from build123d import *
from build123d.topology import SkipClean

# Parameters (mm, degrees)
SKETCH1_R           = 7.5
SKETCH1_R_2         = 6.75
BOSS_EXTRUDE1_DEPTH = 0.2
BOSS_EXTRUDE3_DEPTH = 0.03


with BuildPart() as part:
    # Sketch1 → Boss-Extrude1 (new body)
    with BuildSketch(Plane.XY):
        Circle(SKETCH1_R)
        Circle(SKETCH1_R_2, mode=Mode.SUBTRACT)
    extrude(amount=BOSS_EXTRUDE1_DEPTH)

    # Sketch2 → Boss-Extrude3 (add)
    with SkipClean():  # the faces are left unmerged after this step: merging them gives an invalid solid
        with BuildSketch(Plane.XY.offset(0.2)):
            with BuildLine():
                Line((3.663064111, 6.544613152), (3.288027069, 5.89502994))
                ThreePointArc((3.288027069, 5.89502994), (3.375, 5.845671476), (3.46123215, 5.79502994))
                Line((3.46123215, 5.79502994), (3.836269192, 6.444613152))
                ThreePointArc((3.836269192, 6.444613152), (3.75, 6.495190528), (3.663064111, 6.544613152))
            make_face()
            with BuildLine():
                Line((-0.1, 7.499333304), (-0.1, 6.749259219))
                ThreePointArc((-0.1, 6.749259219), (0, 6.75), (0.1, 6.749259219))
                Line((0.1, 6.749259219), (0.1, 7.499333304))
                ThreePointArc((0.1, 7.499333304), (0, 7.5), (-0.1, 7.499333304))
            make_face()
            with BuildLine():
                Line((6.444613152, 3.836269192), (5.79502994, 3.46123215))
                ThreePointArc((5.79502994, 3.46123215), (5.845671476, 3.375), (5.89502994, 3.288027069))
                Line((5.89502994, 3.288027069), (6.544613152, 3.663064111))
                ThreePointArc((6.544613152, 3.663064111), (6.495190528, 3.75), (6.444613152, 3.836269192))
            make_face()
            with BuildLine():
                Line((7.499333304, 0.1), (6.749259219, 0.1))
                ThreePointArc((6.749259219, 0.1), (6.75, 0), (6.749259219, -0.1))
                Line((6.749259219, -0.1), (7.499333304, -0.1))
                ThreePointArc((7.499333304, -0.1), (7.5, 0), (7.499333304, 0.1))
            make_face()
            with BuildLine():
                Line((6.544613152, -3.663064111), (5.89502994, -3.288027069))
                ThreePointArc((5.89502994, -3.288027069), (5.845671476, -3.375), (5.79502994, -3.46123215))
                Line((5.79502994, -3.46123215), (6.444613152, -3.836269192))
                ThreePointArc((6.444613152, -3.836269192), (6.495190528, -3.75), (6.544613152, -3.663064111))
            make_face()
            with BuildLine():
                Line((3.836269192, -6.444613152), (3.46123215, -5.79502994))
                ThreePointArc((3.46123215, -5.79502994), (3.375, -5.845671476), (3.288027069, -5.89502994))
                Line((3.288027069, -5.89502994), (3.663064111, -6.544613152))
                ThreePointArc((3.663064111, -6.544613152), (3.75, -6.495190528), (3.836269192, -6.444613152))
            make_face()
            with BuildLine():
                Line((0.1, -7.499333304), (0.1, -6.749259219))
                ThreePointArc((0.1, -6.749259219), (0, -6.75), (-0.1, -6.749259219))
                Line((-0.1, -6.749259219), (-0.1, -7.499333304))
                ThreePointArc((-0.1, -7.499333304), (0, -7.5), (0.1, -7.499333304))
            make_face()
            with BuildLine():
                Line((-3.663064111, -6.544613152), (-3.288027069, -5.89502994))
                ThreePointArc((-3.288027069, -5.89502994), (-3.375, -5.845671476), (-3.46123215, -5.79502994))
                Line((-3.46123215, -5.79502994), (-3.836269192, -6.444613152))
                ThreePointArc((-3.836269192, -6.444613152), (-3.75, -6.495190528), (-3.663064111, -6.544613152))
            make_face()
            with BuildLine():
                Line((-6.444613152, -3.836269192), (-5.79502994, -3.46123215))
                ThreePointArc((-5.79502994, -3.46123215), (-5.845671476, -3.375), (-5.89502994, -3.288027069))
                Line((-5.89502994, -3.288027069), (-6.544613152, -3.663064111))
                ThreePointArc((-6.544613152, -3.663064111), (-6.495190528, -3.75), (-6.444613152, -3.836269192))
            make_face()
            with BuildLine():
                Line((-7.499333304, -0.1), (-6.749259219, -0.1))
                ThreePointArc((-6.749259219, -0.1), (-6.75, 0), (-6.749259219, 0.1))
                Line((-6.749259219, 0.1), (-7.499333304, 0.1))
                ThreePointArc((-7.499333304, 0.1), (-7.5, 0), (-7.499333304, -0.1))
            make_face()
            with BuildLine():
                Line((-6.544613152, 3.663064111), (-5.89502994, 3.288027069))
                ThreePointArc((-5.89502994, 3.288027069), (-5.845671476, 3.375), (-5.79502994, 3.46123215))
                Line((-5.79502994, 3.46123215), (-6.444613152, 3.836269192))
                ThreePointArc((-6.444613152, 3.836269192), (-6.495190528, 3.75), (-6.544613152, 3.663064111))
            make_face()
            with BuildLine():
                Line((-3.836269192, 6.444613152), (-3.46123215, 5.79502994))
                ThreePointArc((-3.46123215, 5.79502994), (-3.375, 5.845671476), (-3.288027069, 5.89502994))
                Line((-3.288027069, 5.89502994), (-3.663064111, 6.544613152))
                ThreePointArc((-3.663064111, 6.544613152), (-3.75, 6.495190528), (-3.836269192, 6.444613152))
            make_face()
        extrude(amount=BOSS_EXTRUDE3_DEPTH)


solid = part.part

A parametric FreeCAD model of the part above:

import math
import FreeCAD as App
import Part
import Sketcher
Q = App.Units.Quantity

doc = App.newDocument("Part")
body = doc.addObject("PartDesign::Body", "Body")

# Sketch on XY plane
sketch1 = body.newObject("Sketcher::SketchObject", "Sketch")
sketch1.AttachmentSupport = (doc.getObject("XY_Plane"), [""])
sketch1.MapMode = "FlatFace"
sketch1.addGeometry(Part.Circle(App.Vector(0, 0, 0), App.Vector(0, 0, 1), 8), False)
sketch1.addGeometry(Part.Circle(App.Vector(0, 0, 0), App.Vector(0, 0, 1), 7), False)
sketch1.addConstraint(Sketcher.Constraint("Coincident", 0, 3, -1, 1))
sketch1.addConstraint(Sketcher.Constraint("Coincident", 1, 3, -1, 1))
sketch1.addConstraint(Sketcher.Constraint("Diameter", 0, Q("15 mm")))
sketch1.addConstraint(Sketcher.Constraint("Diameter", 1, Q("13.5 mm")))
pad1 = body.newObject("PartDesign::Pad", "Pad")
pad1.Profile = sketch1
pad1.Length = 0.2

# Sketch on XY plane
sketch2 = body.newObject("Sketcher::SketchObject", "Sketch001")
sketch2.AttachmentSupport = (doc.getObject("XY_Plane"), [""])
sketch2.MapMode = "FlatFace"
sketch2.AttachmentOffset = App.Placement(App.Vector(0, 0, 0.2), App.Rotation())
sketch2.addGeometry(Part.LineSegment(App.Vector(3.66, 6.54, 0), App.Vector(3.29, 5.9, 0)), False)
sketch2.addGeometry(Part.ArcOfCircle(Part.Circle(App.Vector(0, 0, 0), App.Vector(0, 0, 1), 6.75), math.radians(59.15), math.radians(60.85)), False)
sketch2.addGeometry(Part.LineSegment(App.Vector(3.46, 5.8, 0), App.Vector(3.84, 6.44, 0)), False)
sketch2.addGeometry(Part.ArcOfCircle(Part.Circle(App.Vector(0, 0, 0), App.Vector(0, 0, 1), 7.5), math.radians(59.24), math.radians(60.76)), False)
sketch2.addGeometry(Part.LineSegment(App.Vector(-0.1, 7.5, 0), App.Vector(-0.1, 6.75, 0)), False)
sketch2.addGeometry(Part.ArcOfCircle(Part.Circle(App.Vector(0, 0, 0), App.Vector(0, 0, 1), 6.75), math.radians(89.15), math.radians(90.85)), False)
sketch2.addGeometry(Part.LineSegment(App.Vector(0.1, 6.75, 0), App.Vector(0.1, 7.5, 0)), False)
sketch2.addGeometry(Part.ArcOfCircle(Part.Circle(App.Vector(0, 0, 0), App.Vector(0, 0, 1), 7.5), math.radians(89.24), math.radians(90.76)), False)
sketch2.addGeometry(Part.LineSegment(App.Vector(6.44, 3.84, 0), App.Vector(5.8, 3.46, 0)), False)
sketch2.addGeometry(Part.ArcOfCircle(Part.Circle(App.Vector(0, 0, 0), App.Vector(0, 0, 1), 6.75), math.radians(29.15), math.radians(30.85)), False)
sketch2.addGeometry(Part.LineSegment(App.Vector(5.9, 3.29, 0), App.Vector(6.54, 3.66, 0)), False)
sketch2.addGeometry(Part.ArcOfCircle(Part.Circle(App.Vector(0, 0, 0), App.Vector(0, 0, 1), 7.5), math.radians(29.24), math.radians(30.76)), False)
sketch2.addGeometry(Part.LineSegment(App.Vector(7.5, 0.1, 0), App.Vector(6.75, 0.1, 0)), False)
sketch2.addGeometry(Part.ArcOfCircle(Part.Circle(App.Vector(0, 0, 0), App.Vector(0, 0, 1), 6.75), math.radians(-0.85), math.radians(0.85)), False)
sketch2.addGeometry(Part.LineSegment(App.Vector(6.75, -0.1, 0), App.Vector(7.5, -0.1, 0)), False)
sketch2.addGeometry(Part.ArcOfCircle(Part.Circle(App.Vector(0, 0, 0), App.Vector(0, 0, 1), 7.5), math.radians(-0.76), math.radians(0.76)), False)
sketch2.addGeometry(Part.LineSegment(App.Vector(6.54, -3.66, 0), App.Vector(5.9, -3.29, 0)), False)
sketch2.addGeometry(Part.ArcOfCircle(Part.Circle(App.Vector(0, 0, 0), App.Vector(0, 0, 1), 6.75), math.radians(-30.85), math.radians(-29.15)), False)
sketch2.addGeometry(Part.LineSegment(App.Vector(5.8, -3.46, 0), App.Vector(6.44, -3.84, 0)), False)
sketch2.addGeometry(Part.ArcOfCircle(Part.Circle(App.Vector(0, 0, 0), App.Vector(0, 0, 1), 7.5), math.radians(-30.76), math.radians(-29.24)), False)
sketch2.addGeometry(Part.LineSegment(App.Vector(3.84, -6.44, 0), App.Vector(3.46, -5.8, 0)), False)
sketch2.addGeometry(Part.ArcOfCircle(Part.Circle(App.Vector(0, 0, 0), App.Vector(0, 0, 1), 6.75), math.radians(-60.85), math.radians(-59.15)), False)
sketch2.addGeometry(Part.LineSegment(App.Vector(3.29, -5.9, 0), App.Vector(3.66, -6.54, 0)), False)
sketch2.addGeometry(Part.ArcOfCircle(Part.Circle(App.Vector(0, 0, 0), App.Vector(0, 0, 1), 7.5), math.radians(-60.76), math.radians(-59.24)), False)
sketch2.addGeometry(Part.LineSegment(App.Vector(0.1, -7.5, 0), App.Vector(0.1, -6.75, 0)), False)
sketch2.addGeometry(Part.ArcOfCircle(Part.Circle(App.Vector(0, 0, 0), App.Vector(0, 0, 1), 6.75), math.radians(-90.85), math.radians(-89.15)), False)
sketch2.addGeometry(Part.LineSegment(App.Vector(-0.1, -6.75, 0), App.Vector(-0.1, -7.5, 0)), False)
sketch2.addGeometry(Part.ArcOfCircle(Part.Circle(App.Vector(0, 0, 0), App.Vector(0, 0, 1), 7.5), math.radians(-90.76), math.radians(-89.24)), False)
sketch2.addGeometry(Part.LineSegment(App.Vector(-3.66, -6.54, 0), App.Vector(-3.29, -5.9, 0)), False)
sketch2.addGeometry(Part.ArcOfCircle(Part.Circle(App.Vector(0, 0, 0), App.Vector(0, 0, 1), 6.75), math.radians(-120.85), math.radians(-119.15)), False)
sketch2.addGeometry(Part.LineSegment(App.Vector(-3.46, -5.8, 0), App.Vector(-3.84, -6.44, 0)), False)
sketch2.addGeometry(Part.ArcOfCircle(Part.Circle(App.Vector(0, 0, 0), App.Vector(0, 0, 1), 7.5), math.radians(-120.76), math.radians(-119.24)), False)
sketch2.addGeometry(Part.LineSegment(App.Vector(-6.44, -3.84, 0), App.Vector(-5.8, -3.46, 0)), False)
sketch2.addGeometry(Part.ArcOfCircle(Part.Circle(App.Vector(0, 0, 0), App.Vector(0, 0, 1), 6.75), math.radians(-150.85), math.radians(-149.15)), False)
sketch2.addGeometry(Part.LineSegment(App.Vector(-5.9, -3.29, 0), App.Vector(-6.54, -3.66, 0)), False)
sketch2.addGeometry(Part.ArcOfCircle(Part.Circle(App.Vector(0, 0, 0), App.Vector(0, 0, 1), 7.5), math.radians(-150.76), math.radians(-149.24)), False)
sketch2.addGeometry(Part.LineSegment(App.Vector(-7.5, -0.1, 0), App.Vector(-6.75, -0.1, 0)), False)
sketch2.addGeometry(Part.ArcOfCircle(Part.Circle(App.Vector(0, 0, 0), App.Vector(0, 0, 1), 6.75), math.radians(179.15), math.radians(180.85)), False)
sketch2.addGeometry(Part.LineSegment(App.Vector(-6.75, 0.1, 0), App.Vector(-7.5, 0.1, 0)), False)
sketch2.addGeometry(Part.ArcOfCircle(Part.Circle(App.Vector(0, 0, 0), App.Vector(0, 0, 1), 7.5), math.radians(179.24), math.radians(180.76)), False)
sketch2.addGeometry(Part.LineSegment(App.Vector(-6.54, 3.66, 0), App.Vector(-5.9, 3.29, 0)), False)
sketch2.addGeometry(Part.ArcOfCircle(Part.Circle(App.Vector(0, 0, 0), App.Vector(0, 0, 1), 6.75), math.radians(149.15), math.radians(150.85)), False)
sketch2.addGeometry(Part.LineSegment(App.Vector(-5.8, 3.46, 0), App.Vector(-6.44, 3.84, 0)), False)
sketch2.addGeometry(Part.ArcOfCircle(Part.Circle(App.Vector(0, 0, 0), App.Vector(0, 0, 1), 7.5), math.radians(149.24), math.radians(150.76)), False)
sketch2.addGeometry(Part.LineSegment(App.Vector(-3.84, 6.44, 0), App.Vector(-3.46, 5.8, 0)), False)
sketch2.addGeometry(Part.ArcOfCircle(Part.Circle(App.Vector(0, 0, 0), App.Vector(0, 0, 1), 6.75), math.radians(119.15), math.radians(120.85)), False)
sketch2.addGeometry(Part.LineSegment(App.Vector(-3.29, 5.9, 0), App.Vector(-3.66, 6.54, 0)), False)
sketch2.addGeometry(Part.ArcOfCircle(Part.Circle(App.Vector(0, 0, 0), App.Vector(0, 0, 1), 7.5), math.radians(119.24), math.radians(120.76)), False)
sketch2.addConstraint(Sketcher.Constraint("Coincident", 0, 2, 1, 2))
sketch2.addConstraint(Sketcher.Constraint("Coincident", 1, 1, 2, 1))
sketch2.addConstraint(Sketcher.Constraint("Coincident", 2, 2, 3, 1))
sketch2.addConstraint(Sketcher.Constraint("Coincident", 3, 2, 0, 1))
sketch2.addConstraint(Sketcher.Constraint("Coincident", 4, 2, 5, 2))
sketch2.addConstraint(Sketcher.Constraint("Coincident", 5, 1, 6, 1))
sketch2.addConstraint(Sketcher.Constraint("Coincident", 6, 2, 7, 1))
sketch2.addConstraint(Sketcher.Constraint("Coincident", 7, 2, 4, 1))
sketch2.addConstraint(Sketcher.Constraint("Coincident", 8, 2, 9, 2))
sketch2.addConstraint(Sketcher.Constraint("Coincident", 9, 1, 10, 1))
sketch2.addConstraint(Sketcher.Constraint("Coincident", 10, 2, 11, 1))
sketch2.addConstraint(Sketcher.Constraint("Coincident", 11, 2, 8, 1))
sketch2.addConstraint(Sketcher.Constraint("Coincident", 12, 2, 13, 2))
sketch2.addConstraint(Sketcher.Constraint("Coincident", 13, 1, 14, 1))
sketch2.addConstraint(Sketcher.Constraint("Coincident", 14, 2, 15, 1))
sketch2.addConstraint(Sketcher.Constraint("Coincident", 15, 2, 12, 1))
sketch2.addConstraint(Sketcher.Constraint("Coincident", 16, 2, 17, 2))
sketch2.addConstraint(Sketcher.Constraint("Coincident", 17, 1, 18, 1))
sketch2.addConstraint(Sketcher.Constraint("Coincident", 18, 2, 19, 1))
sketch2.addConstraint(Sketcher.Constraint("Coincident", 19, 2, 16, 1))
sketch2.addConstraint(Sketcher.Constraint("Coincident", 20, 2, 21, 2))
sketch2.addConstraint(Sketcher.Constraint("Coincident", 21, 1, 22, 1))
sketch2.addConstraint(Sketcher.Constraint("Coincident", 22, 2, 23, 1))
sketch2.addConstraint(Sketcher.Constraint("Coincident", 23, 2, 20, 1))
sketch2.addConstraint(Sketcher.Constraint("Coincident", 24, 2, 25, 2))
sketch2.addConstraint(Sketcher.Constraint("Coincident", 25, 1, 26, 1))
sketch2.addConstraint(Sketcher.Constraint("Coincident", 26, 2, 27, 1))
sketch2.addConstraint(Sketcher.Constraint("Coincident", 27, 2, 24, 1))
sketch2.addConstraint(Sketcher.Constraint("Coincident", 28, 2, 29, 2))
sketch2.addConstraint(Sketcher.Constraint("Coincident", 29, 1, 30, 1))
sketch2.addConstraint(Sketcher.Constraint("Coincident", 30, 2, 31, 1))
sketch2.addConstraint(Sketcher.Constraint("Coincident", 31, 2, 28, 1))
sketch2.addConstraint(Sketcher.Constraint("Coincident", 32, 2, 33, 2))
sketch2.addConstraint(Sketcher.Constraint("Coincident", 33, 1, 34, 1))
sketch2.addConstraint(Sketcher.Constraint("Coincident", 34, 2, 35, 1))
sketch2.addConstraint(Sketcher.Constraint("Coincident", 35, 2, 32, 1))
sketch2.addConstraint(Sketcher.Constraint("Coincident", 36, 2, 37, 2))
sketch2.addConstraint(Sketcher.Constraint("Coincident", 37, 1, 38, 1))
sketch2.addConstraint(Sketcher.Constraint("Coincident", 38, 2, 39, 1))
sketch2.addConstraint(Sketcher.Constraint("Coincident", 39, 2, 36, 1))
sketch2.addConstraint(Sketcher.Constraint("Coincident", 40, 2, 41, 2))
sketch2.addConstraint(Sketcher.Constraint("Coincident", 41, 1, 42, 1))
sketch2.addConstraint(Sketcher.Constraint("Coincident", 42, 2, 43, 1))
sketch2.addConstraint(Sketcher.Constraint("Coincident", 43, 2, 40, 1))
sketch2.addConstraint(Sketcher.Constraint("Coincident", 44, 2, 45, 2))
sketch2.addConstraint(Sketcher.Constraint("Coincident", 45, 1, 46, 1))
sketch2.addConstraint(Sketcher.Constraint("Coincident", 46, 2, 47, 1))
sketch2.addConstraint(Sketcher.Constraint("Coincident", 47, 2, 44, 1))
sketch2.addConstraint(Sketcher.Constraint("Vertical", 4))
sketch2.addConstraint(Sketcher.Constraint("Vertical", 6))
sketch2.addConstraint(Sketcher.Constraint("Horizontal", 12))
sketch2.addConstraint(Sketcher.Constraint("Horizontal", 14))
sketch2.addConstraint(Sketcher.Constraint("Vertical", 24))
sketch2.addConstraint(Sketcher.Constraint("Vertical", 26))
sketch2.addConstraint(Sketcher.Constraint("Horizontal", 36))
sketch2.addConstraint(Sketcher.Constraint("Horizontal", 38))
sketch2.addConstraint(Sketcher.Constraint("Coincident", 1, 3, -1, 1))
sketch2.addConstraint(Sketcher.Constraint("Coincident", 3, 3, -1, 1))
sketch2.addConstraint(Sketcher.Constraint("Coincident", 5, 3, -1, 1))
sketch2.addConstraint(Sketcher.Constraint("Coincident", 7, 3, -1, 1))
sketch2.addConstraint(Sketcher.Constraint("Coincident", 9, 3, -1, 1))
sketch2.addConstraint(Sketcher.Constraint("Coincident", 11, 3, -1, 1))
sketch2.addConstraint(Sketcher.Constraint("Coincident", 13, 3, -1, 1))
sketch2.addConstraint(Sketcher.Constraint("Coincident", 15, 3, -1, 1))
sketch2.addConstraint(Sketcher.Constraint("Coincident", 17, 3, -1, 1))
sketch2.addConstraint(Sketcher.Constraint("Coincident", 19, 3, -1, 1))
sketch2.addConstraint(Sketcher.Constraint("Coincident", 21, 3, -1, 1))
sketch2.addConstraint(Sketcher.Constraint("Coincident", 23, 3, -1, 1))
sketch2.addConstraint(Sketcher.Constraint("Coincident", 25, 3, -1, 1))
sketch2.addConstraint(Sketcher.Constraint("Coincident", 27, 3, -1, 1))
sketch2.addConstraint(Sketcher.Constraint("Coincident", 29, 3, -1, 1))
sketch2.addConstraint(Sketcher.Constraint("Coincident", 31, 3, -1, 1))
sketch2.addConstraint(Sketcher.Constraint("Coincident", 33, 3, -1, 1))
sketch2.addConstraint(Sketcher.Constraint("Coincident", 35, 3, -1, 1))
sketch2.addConstraint(Sketcher.Constraint("Coincident", 37, 3, -1, 1))
sketch2.addConstraint(Sketcher.Constraint("Coincident", 39, 3, -1, 1))
sketch2.addConstraint(Sketcher.Constraint("Coincident", 41, 3, -1, 1))
sketch2.addConstraint(Sketcher.Constraint("Coincident", 43, 3, -1, 1))
sketch2.addConstraint(Sketcher.Constraint("Coincident", 45, 3, -1, 1))
sketch2.addConstraint(Sketcher.Constraint("Coincident", 47, 3, -1, 1))
sketch2.addConstraint(Sketcher.Constraint("Equal", 1, 9))
sketch2.addConstraint(Sketcher.Constraint("Equal", 3, 11))
sketch2.addConstraint(Sketcher.Constraint("Equal", 5, 13))
sketch2.addConstraint(Sketcher.Constraint("Equal", 7, 15))
sketch2.addConstraint(Sketcher.Constraint("Equal", 9, 17))
sketch2.addConstraint(Sketcher.Constraint("Equal", 11, 19))
sketch2.addConstraint(Sketcher.Constraint("Equal", 17, 21))
sketch2.addConstraint(Sketcher.Constraint("Equal", 19, 23))
sketch2.addConstraint(Sketcher.Constraint("Equal", 13, 25))
sketch2.addConstraint(Sketcher.Constraint("Equal", 15, 27))
sketch2.addConstraint(Sketcher.Constraint("Equal", 21, 29))
sketch2.addConstraint(Sketcher.Constraint("Equal", 23, 31))
sketch2.addConstraint(Sketcher.Constraint("Equal", 29, 33))
sketch2.addConstraint(Sketcher.Constraint("Equal", 31, 35))
sketch2.addConstraint(Sketcher.Constraint("Equal", 25, 37))
sketch2.addConstraint(Sketcher.Constraint("Equal", 27, 39))
sketch2.addConstraint(Sketcher.Constraint("Equal", 33, 41))
sketch2.addConstraint(Sketcher.Constraint("Equal", 35, 43))
sketch2.addConstraint(Sketcher.Constraint("Equal", 41, 45))
sketch2.addConstraint(Sketcher.Constraint("Equal", 43, 47))
sketch2.addConstraint(Sketcher.Constraint("Parallel", 0, 2))
sketch2.addConstraint(Sketcher.Constraint("Parallel", 8, 10))
sketch2.addConstraint(Sketcher.Constraint("Perpendicular", 2, 16))
sketch2.addConstraint(Sketcher.Constraint("Parallel", 16, 18))
sketch2.addConstraint(Sketcher.Constraint("Perpendicular", 10, 20))
sketch2.addConstraint(Sketcher.Constraint("Parallel", 20, 22))
sketch2.addConstraint(Sketcher.Constraint("Perpendicular", 18, 28))
sketch2.addConstraint(Sketcher.Constraint("Parallel", 28, 30))
sketch2.addConstraint(Sketcher.Constraint("Perpendicular", 22, 32))
sketch2.addConstraint(Sketcher.Constraint("Parallel", 32, 34))
sketch2.addConstraint(Sketcher.Constraint("Perpendicular", 30, 40))
sketch2.addConstraint(Sketcher.Constraint("Parallel", 40, 42))
sketch2.addConstraint(Sketcher.Constraint("Perpendicular", 34, 44))
sketch2.addConstraint(Sketcher.Constraint("Parallel", 44, 46))
sketch2.addConstraint(Sketcher.Constraint("Horizontal", 4, 2, 5, 1))
sketch2.addConstraint(Sketcher.Constraint("Horizontal", 24, 2, 25, 1))
sketch2.addConstraint(Sketcher.Constraint("Horizontal", 21, 1, 28, 2))
sketch2.addConstraint(Sketcher.Constraint("Horizontal", 20, 2, 29, 1))
sketch2.addConstraint(Sketcher.Constraint("Horizontal", 23, 2, 30, 2))
sketch2.addConstraint(Sketcher.Constraint("Horizontal", 17, 1, 32, 2))
sketch2.addConstraint(Sketcher.Constraint("Horizontal", 16, 2, 33, 1))
sketch2.addConstraint(Sketcher.Constraint("Horizontal", 14, 2, 36, 2))
sketch2.addConstraint(Sketcher.Constraint("Horizontal", 15, 2, 37, 1))
sketch2.addConstraint(Sketcher.Constraint("Horizontal", 9, 1, 40, 2))
sketch2.addConstraint(Sketcher.Constraint("Horizontal", 8, 2, 41, 1))
sketch2.addConstraint(Sketcher.Constraint("Horizontal", 1, 1, 44, 2))
sketch2.addConstraint(Sketcher.Constraint("Horizontal", 0, 2, 45, 1))
sketch2.addConstraint(Sketcher.Constraint("Vertical", 12, 2, 13, 1))
sketch2.addConstraint(Sketcher.Constraint("Vertical", 9, 1, 16, 2))
sketch2.addConstraint(Sketcher.Constraint("Vertical", 8, 2, 17, 1))
sketch2.addConstraint(Sketcher.Constraint("Vertical", 1, 1, 20, 2))
sketch2.addConstraint(Sketcher.Constraint("Vertical", 0, 2, 21, 1))
sketch2.addConstraint(Sketcher.Constraint("Vertical", 6, 2, 24, 2))
sketch2.addConstraint(Sketcher.Constraint("Equal", 0, 2))
sketch2.addConstraint(Sketcher.Constraint("Angle", 0, Q("-120 deg")))
sketch2.addConstraint(Sketcher.Constraint("DistanceX", 4, 2, -1, 1, Q("0.1 mm")))
sketch2.addConstraint(Sketcher.Constraint("DistanceY", -1, 1, 12, 2, Q("0.1 mm")))
sketch2.addConstraint(Sketcher.Constraint("Radius", 1, Q("6.749997 mm")))
sketch2.addConstraint(Sketcher.Constraint("Radius", 3, Q("7.499997 mm")))
sketch2.addConstraint(Sketcher.Constraint("Radius", 5, Q("6.750004 mm")))
sketch2.addConstraint(Sketcher.Constraint("Radius", 7, Q("7.500003 mm")))
sketch2.addConstraint(Sketcher.Constraint("DistanceY", -1, 1, 0, 2, Q("5.89503 mm")))
sketch2.addConstraint(Sketcher.Constraint("DistanceX", -1, 1, 8, 2, Q("5.79503 mm")))
sketch2.addConstraint(Sketcher.Constraint("DistanceX", -1, 1, 9, 1, Q("5.89503 mm")))
pad2 = body.newObject("PartDesign::Pad", "Pad001")
pad2.Profile = sketch2
pad2.Length = 0.03

doc.recompute()
